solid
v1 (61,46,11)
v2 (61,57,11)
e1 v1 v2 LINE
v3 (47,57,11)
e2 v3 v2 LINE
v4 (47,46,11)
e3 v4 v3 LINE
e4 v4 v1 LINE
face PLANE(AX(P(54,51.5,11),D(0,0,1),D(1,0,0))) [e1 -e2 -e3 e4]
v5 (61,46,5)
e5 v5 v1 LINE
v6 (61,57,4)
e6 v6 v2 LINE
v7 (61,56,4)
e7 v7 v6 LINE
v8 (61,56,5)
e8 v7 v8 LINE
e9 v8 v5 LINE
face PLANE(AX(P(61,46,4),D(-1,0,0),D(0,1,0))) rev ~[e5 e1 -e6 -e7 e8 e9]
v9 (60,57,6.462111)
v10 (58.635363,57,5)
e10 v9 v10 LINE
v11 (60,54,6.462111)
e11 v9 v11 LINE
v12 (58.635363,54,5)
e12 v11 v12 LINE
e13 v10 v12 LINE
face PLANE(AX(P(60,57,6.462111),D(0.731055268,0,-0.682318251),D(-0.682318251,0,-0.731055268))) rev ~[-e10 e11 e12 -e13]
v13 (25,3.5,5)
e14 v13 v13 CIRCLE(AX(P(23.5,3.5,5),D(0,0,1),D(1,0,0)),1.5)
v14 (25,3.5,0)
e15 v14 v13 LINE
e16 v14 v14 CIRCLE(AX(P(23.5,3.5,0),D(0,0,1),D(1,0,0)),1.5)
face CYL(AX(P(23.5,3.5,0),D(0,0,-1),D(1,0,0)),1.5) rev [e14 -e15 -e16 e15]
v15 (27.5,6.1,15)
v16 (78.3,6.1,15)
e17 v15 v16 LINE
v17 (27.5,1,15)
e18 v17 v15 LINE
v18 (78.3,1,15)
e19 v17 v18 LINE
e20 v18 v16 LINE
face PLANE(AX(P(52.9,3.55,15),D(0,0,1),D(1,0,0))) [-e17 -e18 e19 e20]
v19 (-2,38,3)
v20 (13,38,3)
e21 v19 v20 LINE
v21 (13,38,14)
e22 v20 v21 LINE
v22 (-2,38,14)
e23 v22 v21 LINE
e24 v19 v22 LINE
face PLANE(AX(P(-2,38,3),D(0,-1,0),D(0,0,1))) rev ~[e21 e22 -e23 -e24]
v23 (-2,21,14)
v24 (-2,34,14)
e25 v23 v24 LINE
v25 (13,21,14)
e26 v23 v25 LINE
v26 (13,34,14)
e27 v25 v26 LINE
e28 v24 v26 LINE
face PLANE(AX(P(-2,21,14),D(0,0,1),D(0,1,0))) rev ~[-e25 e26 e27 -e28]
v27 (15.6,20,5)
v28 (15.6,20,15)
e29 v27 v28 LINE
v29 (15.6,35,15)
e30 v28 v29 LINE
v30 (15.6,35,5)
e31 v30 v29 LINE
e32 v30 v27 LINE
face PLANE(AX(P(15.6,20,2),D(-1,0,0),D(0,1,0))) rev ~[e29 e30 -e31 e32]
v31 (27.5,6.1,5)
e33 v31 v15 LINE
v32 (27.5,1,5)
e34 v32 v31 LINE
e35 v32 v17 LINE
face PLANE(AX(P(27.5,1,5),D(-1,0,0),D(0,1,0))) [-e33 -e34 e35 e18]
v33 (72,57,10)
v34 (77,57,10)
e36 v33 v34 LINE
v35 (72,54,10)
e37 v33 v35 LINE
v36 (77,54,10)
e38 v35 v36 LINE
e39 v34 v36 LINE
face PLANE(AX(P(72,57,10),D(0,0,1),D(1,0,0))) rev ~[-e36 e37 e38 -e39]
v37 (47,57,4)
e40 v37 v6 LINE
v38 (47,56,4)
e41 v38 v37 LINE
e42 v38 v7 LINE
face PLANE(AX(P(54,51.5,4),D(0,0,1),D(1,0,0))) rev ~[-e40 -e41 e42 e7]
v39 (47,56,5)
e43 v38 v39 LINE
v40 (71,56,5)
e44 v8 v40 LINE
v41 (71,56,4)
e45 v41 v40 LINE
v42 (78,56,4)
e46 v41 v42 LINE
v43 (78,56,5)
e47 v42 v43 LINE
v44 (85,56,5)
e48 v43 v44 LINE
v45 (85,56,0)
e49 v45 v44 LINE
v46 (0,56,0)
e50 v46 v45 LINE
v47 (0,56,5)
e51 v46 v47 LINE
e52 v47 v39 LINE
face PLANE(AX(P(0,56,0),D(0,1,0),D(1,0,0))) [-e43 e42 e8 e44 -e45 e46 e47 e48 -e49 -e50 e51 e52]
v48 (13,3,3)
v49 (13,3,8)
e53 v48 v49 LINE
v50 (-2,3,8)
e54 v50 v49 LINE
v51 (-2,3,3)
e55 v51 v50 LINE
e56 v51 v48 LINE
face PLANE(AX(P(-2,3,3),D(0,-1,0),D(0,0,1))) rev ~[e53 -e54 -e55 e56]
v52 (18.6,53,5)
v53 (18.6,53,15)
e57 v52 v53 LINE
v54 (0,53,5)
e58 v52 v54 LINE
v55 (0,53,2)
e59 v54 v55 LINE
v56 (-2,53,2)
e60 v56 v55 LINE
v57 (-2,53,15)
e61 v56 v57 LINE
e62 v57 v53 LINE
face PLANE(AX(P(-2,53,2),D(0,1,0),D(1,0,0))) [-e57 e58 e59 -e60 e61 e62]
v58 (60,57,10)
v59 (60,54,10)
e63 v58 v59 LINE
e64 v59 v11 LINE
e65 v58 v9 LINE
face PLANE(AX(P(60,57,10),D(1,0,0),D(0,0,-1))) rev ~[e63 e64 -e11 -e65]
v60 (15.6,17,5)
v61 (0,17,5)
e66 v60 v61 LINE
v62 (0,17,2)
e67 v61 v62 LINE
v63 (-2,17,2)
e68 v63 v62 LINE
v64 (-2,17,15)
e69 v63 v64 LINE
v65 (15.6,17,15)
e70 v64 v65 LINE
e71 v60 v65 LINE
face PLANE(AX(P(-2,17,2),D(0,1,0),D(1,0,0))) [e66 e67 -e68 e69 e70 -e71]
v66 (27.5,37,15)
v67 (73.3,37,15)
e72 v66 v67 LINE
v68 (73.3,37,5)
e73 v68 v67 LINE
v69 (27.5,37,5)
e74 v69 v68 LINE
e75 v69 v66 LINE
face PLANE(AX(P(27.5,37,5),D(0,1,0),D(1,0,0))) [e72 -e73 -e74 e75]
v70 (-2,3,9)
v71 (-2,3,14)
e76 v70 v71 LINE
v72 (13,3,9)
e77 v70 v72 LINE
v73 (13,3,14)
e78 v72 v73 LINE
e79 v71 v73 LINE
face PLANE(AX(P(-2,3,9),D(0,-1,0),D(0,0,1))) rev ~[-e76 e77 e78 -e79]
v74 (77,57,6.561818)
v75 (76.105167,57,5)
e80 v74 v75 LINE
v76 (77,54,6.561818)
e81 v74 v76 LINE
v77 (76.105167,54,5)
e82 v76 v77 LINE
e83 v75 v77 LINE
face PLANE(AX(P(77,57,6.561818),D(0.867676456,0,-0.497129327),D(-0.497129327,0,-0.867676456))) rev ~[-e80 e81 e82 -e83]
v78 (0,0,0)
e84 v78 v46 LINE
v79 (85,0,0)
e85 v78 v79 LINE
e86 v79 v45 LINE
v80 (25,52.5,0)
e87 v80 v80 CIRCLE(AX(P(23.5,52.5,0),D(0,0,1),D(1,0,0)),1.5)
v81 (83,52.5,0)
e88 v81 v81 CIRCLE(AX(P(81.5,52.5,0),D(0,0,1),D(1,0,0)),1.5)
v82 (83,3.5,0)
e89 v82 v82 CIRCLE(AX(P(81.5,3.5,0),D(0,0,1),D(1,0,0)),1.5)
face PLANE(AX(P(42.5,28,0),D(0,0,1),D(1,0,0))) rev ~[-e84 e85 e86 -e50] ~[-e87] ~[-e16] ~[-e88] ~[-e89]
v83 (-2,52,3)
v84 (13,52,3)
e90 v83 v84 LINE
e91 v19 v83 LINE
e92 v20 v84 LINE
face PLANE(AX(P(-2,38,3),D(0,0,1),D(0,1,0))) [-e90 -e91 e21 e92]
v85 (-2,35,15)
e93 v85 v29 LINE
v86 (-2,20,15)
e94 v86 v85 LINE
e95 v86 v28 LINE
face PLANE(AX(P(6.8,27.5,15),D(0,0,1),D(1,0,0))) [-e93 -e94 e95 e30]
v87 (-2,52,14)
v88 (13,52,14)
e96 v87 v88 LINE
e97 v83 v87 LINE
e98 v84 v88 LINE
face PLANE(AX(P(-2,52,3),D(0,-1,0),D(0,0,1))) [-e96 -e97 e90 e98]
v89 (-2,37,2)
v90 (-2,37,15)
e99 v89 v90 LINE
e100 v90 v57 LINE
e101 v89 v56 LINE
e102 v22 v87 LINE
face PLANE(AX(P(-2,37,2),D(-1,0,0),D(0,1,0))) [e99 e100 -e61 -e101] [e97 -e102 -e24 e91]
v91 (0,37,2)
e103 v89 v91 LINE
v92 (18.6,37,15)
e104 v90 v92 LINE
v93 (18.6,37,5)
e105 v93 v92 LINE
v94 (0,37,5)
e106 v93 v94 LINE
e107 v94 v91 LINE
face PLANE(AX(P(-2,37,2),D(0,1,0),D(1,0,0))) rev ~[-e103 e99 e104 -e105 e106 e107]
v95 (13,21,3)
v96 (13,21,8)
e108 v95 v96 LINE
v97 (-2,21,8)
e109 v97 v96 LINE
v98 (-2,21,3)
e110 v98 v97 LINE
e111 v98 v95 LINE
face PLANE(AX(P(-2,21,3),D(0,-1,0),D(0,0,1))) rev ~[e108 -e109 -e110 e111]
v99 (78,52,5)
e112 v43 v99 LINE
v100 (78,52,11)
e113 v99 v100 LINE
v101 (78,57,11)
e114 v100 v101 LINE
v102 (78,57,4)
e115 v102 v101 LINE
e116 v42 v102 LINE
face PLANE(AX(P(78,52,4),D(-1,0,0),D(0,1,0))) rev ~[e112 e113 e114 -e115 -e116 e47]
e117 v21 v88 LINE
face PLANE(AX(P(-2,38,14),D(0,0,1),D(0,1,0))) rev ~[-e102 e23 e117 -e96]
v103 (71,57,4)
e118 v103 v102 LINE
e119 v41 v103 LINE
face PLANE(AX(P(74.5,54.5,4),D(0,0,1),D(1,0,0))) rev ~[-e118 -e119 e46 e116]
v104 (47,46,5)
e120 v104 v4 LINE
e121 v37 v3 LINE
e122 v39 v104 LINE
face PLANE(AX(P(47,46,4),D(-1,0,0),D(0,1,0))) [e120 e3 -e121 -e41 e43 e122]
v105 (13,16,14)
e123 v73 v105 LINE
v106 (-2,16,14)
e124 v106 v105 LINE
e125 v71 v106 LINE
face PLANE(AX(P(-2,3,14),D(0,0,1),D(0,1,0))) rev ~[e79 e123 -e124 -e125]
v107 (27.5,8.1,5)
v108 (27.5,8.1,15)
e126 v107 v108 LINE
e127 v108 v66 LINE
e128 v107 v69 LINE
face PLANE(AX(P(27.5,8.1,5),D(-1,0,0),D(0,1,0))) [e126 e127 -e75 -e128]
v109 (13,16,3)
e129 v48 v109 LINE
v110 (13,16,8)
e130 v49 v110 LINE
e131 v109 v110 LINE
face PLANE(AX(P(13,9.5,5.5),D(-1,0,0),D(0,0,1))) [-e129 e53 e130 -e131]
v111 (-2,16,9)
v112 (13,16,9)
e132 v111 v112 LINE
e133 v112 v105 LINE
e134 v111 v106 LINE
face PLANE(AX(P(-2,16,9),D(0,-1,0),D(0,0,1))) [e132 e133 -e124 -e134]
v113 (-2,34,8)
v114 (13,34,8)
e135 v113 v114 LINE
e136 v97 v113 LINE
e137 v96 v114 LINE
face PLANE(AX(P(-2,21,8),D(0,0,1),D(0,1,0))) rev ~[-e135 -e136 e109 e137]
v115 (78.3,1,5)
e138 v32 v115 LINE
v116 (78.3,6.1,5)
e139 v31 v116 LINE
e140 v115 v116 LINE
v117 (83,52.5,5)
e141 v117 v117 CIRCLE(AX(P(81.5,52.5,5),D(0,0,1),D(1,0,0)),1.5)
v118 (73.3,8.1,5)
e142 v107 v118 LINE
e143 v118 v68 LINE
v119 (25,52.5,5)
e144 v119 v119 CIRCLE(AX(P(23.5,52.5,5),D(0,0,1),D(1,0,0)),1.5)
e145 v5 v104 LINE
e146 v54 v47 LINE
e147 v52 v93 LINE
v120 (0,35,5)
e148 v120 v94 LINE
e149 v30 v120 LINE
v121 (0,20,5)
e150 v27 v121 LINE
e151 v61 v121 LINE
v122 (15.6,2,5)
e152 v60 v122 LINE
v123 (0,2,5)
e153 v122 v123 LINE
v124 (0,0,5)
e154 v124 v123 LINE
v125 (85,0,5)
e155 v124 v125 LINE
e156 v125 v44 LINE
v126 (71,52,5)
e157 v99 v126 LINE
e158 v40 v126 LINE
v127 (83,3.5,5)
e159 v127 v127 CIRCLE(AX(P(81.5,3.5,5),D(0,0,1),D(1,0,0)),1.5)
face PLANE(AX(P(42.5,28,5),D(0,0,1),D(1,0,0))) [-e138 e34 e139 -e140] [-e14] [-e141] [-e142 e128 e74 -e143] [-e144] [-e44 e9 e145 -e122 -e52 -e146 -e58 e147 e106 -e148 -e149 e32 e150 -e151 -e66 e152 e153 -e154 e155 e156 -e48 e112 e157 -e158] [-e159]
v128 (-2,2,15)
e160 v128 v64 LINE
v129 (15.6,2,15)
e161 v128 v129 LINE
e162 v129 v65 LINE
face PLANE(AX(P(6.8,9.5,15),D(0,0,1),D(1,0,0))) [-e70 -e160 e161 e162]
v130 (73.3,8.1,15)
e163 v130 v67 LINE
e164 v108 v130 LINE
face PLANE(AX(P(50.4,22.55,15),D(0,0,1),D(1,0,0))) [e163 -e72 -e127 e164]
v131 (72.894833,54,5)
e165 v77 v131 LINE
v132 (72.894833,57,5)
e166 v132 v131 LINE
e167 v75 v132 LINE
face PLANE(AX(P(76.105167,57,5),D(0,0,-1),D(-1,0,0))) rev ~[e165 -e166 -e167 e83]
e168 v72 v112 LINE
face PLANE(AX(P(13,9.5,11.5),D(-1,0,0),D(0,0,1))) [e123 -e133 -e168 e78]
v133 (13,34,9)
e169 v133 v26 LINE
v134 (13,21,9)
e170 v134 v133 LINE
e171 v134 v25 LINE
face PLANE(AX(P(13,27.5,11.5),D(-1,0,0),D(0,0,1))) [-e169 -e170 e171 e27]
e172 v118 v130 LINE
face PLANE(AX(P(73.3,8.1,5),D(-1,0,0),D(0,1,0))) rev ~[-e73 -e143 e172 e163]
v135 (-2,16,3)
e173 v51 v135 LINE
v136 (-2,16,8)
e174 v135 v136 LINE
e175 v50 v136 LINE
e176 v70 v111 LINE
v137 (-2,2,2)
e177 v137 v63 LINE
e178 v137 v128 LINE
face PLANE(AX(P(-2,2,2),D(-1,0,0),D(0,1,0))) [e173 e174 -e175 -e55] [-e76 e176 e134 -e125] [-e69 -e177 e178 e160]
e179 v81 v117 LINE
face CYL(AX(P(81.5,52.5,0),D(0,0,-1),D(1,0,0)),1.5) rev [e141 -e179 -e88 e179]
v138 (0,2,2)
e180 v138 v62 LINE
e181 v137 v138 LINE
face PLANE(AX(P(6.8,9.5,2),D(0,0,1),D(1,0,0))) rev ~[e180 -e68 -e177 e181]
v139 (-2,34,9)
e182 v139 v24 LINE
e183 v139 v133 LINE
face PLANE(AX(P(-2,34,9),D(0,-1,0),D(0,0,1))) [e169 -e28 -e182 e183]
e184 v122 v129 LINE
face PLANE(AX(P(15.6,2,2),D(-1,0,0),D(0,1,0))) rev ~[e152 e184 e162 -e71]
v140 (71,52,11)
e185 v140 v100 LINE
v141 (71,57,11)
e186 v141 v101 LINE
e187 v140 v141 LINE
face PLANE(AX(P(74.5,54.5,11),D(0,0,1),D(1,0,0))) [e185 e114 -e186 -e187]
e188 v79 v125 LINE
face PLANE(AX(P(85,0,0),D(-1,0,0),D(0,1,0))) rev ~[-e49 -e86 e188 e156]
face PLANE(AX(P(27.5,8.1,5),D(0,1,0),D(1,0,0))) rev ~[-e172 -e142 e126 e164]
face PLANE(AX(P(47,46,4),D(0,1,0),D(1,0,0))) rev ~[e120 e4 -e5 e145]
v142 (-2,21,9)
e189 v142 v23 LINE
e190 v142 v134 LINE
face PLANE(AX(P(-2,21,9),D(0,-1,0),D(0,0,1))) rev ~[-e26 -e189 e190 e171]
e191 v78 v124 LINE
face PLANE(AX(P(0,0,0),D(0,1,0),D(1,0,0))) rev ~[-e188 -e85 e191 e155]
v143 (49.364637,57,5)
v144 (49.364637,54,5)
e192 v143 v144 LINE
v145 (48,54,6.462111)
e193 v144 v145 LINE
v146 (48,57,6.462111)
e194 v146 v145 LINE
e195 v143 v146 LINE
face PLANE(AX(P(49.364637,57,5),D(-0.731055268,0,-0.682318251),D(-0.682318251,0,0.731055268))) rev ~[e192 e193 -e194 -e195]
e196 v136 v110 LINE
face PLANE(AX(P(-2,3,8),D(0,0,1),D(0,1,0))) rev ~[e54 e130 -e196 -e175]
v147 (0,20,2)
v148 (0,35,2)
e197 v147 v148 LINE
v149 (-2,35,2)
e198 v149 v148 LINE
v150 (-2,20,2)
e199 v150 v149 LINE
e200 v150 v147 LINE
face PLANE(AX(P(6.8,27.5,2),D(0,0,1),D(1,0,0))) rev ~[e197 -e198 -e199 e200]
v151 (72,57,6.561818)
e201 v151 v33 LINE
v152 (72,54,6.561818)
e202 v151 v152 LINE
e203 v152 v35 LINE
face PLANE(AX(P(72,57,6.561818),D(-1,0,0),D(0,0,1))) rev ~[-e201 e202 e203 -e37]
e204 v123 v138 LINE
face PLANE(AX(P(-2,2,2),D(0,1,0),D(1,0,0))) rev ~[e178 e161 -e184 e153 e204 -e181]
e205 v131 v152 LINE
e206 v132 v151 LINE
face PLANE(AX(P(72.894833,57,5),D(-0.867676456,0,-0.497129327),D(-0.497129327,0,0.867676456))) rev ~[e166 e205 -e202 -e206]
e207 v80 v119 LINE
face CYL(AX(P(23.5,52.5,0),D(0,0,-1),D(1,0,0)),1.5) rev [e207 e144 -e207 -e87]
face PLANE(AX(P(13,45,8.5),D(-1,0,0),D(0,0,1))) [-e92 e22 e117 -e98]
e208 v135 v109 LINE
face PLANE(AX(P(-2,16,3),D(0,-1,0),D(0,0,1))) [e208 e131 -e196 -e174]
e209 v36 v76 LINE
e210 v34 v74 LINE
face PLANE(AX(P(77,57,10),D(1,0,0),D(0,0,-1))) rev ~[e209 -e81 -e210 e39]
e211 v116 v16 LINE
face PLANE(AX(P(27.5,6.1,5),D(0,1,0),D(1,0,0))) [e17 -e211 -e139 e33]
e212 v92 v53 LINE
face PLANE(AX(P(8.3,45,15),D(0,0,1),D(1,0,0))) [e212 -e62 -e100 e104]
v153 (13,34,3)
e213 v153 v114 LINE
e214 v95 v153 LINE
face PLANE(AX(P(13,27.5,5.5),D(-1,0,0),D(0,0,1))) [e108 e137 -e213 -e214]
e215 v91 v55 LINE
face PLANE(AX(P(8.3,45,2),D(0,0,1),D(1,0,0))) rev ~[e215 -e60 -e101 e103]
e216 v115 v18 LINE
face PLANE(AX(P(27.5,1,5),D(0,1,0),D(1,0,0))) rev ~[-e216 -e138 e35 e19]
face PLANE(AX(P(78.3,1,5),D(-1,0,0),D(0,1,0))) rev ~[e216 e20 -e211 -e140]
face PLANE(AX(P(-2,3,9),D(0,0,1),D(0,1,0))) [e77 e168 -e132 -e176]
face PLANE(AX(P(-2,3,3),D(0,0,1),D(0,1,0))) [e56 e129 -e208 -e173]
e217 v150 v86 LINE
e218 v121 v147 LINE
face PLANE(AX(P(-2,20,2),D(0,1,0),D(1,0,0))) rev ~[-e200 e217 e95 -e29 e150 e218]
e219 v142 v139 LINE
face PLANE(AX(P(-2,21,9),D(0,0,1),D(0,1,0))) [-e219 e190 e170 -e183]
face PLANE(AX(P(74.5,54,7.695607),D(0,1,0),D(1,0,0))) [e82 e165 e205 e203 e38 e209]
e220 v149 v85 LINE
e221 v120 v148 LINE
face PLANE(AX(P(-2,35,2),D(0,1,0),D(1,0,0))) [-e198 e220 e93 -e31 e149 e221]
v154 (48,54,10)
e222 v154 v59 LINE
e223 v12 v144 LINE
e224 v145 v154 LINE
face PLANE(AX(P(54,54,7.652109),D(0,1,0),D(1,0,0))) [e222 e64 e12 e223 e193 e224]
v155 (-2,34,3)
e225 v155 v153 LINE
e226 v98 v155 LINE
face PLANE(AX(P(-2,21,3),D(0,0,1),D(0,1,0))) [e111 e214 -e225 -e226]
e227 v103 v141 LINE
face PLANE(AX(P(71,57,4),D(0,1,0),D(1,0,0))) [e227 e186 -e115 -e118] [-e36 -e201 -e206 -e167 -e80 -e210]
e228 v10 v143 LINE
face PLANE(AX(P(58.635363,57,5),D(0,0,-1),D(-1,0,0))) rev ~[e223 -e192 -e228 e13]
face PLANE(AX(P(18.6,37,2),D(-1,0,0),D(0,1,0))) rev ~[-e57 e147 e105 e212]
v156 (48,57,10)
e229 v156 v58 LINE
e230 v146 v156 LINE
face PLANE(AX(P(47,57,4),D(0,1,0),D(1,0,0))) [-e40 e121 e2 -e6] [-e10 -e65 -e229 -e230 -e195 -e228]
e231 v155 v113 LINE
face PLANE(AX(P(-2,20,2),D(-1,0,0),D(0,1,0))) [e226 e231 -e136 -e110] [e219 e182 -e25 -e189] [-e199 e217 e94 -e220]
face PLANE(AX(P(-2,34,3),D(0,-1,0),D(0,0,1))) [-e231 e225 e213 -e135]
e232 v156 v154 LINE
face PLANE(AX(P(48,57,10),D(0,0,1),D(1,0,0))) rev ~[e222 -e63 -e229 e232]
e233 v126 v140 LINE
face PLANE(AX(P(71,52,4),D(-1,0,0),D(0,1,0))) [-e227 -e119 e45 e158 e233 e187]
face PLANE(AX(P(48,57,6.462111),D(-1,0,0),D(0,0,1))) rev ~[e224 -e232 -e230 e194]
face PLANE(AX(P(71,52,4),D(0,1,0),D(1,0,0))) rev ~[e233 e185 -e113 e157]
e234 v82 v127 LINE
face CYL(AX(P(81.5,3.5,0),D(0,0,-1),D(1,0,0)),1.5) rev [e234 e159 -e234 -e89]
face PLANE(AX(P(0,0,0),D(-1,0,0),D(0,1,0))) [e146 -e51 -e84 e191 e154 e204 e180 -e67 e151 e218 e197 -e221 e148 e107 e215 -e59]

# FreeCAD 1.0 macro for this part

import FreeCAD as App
import Part
import Sketcher
from FreeCAD import Vector
Q = App.Units.Quantity

doc = App.newDocument("Part")
body = doc.addObject("PartDesign::Body", "Body")

# Sketch on XY plane
sketch1 = doc.addObject("Sketcher::SketchObject", "Sketch")
body.addObject(sketch1)
sketch1.AttachmentSupport = (doc.XY_Plane, [""])
sketch1.MapMode = "FlatFace"
sketch1.addGeometry(Part.LineSegment(Vector(0, 56, 0), Vector(0, 0, 0)), False)
sketch1.addGeometry(Part.LineSegment(Vector(0, 0, 0), Vector(85, 0, 0)), False)
sketch1.addGeometry(Part.LineSegment(Vector(85, 0, 0), Vector(85, 56, 0)), False)
sketch1.addGeometry(Part.LineSegment(Vector(85, 56, 0), Vector(0, 56, 0)), False)
sketch1.addGeometry(Part.Circle(Vector(23.5, 3.5, 0), Vector(0, 0, 1), 1.5), False)
sketch1.addGeometry(Part.Circle(Vector(81.5, 3.5, 0), Vector(0, 0, 1), 1.5), False)
sketch1.addGeometry(Part.Circle(Vector(23.5, 52.5, 0), Vector(0, 0, 1), 1.5), False)
sketch1.addGeometry(Part.Circle(Vector(81.5, 52.5, 0), Vector(0, 0, 1), 1.5), False)
sketch1.addConstraint(Sketcher.Constraint("Coincident", 0, 2, 1, 1))
sketch1.addConstraint(Sketcher.Constraint("Coincident", 1, 2, 2, 1))
sketch1.addConstraint(Sketcher.Constraint("Coincident", 2, 2, 3, 1))
sketch1.addConstraint(Sketcher.Constraint("Coincident", 3, 2, 0, 1))
sketch1.addConstraint(Sketcher.Constraint("Vertical", 0))
sketch1.addConstraint(Sketcher.Constraint("Horizontal", 1))
sketch1.addConstraint(Sketcher.Constraint("Vertical", 2))
sketch1.addConstraint(Sketcher.Constraint("Horizontal", 3))
sketch1.addConstraint(Sketcher.Constraint("Coincident", 0, 2, -1, 1))
sketch1.addConstraint(Sketcher.Constraint("Equal", 4, 5))
sketch1.addConstraint(Sketcher.Constraint("Equal", 5, 6))
sketch1.addConstraint(Sketcher.Constraint("Equal", 6, 7))
sketch1.addConstraint(Sketcher.Constraint("Horizontal", 4, 3, 5, 3))
sketch1.addConstraint(Sketcher.Constraint("Horizontal", 6, 3, 7, 3))
sketch1.addConstraint(Sketcher.Constraint("Vertical", 4, 3, 6, 3))
sketch1.addConstraint(Sketcher.Constraint("Vertical", 5, 3, 7, 3))
sketch1.addConstraint(Sketcher.Constraint("Diameter", 4, Q("3 mm")))
sketch1.addConstraint(Sketcher.Constraint("DistanceX", 1, 1, 1, 2, Q("85 mm")))
sketch1.addConstraint(Sketcher.Constraint("DistanceY", 0, 2, 0, 1, Q("56 mm")))
sketch1.addConstraint(Sketcher.Constraint("DistanceX", 4, 3, 5, 3, Q("58 mm")))
sketch1.addConstraint(Sketcher.Constraint("DistanceY", 4, 3, 6, 3, Q("49 mm")))
sketch1.addConstraint(Sketcher.Constraint("DistanceX", -1, 1, 4, 3, Q("23.5 mm")))
sketch1.addConstraint(Sketcher.Constraint("DistanceY", -1, 1, 4, 3, Q("3.5 mm")))
pad1 = doc.addObject("PartDesign::Pad", "Pad")
body.addObject(pad1)
pad1.Profile = sketch1
pad1.Length = 5

# Sketch on XY plane
sketch2 = doc.addObject("Sketcher::SketchObject", "Sketch001")
body.addObject(sketch2)
sketch2.AttachmentSupport = (doc.XY_Plane, [""])
sketch2.MapMode = "FlatFace"
sketch2.AttachmentOffset = App.Placement(Vector(0, 0, 5), App.Rotation())
sketch2.addGeometry(Part.LineSegment(Vector(-2, 53, 0), Vector(-2, 37, 0)), False)
sketch2.addGeometry(Part.LineSegment(Vector(-2, 37, 0), Vector(19, 37, 0)), False)
sketch2.addGeometry(Part.LineSegment(Vector(19, 37, 0), Vector(19, 53, 0)), False)
sketch2.addGeometry(Part.LineSegment(Vector(19, 53, 0), Vector(-2, 53, 0)), False)
sketch2.addConstraint(Sketcher.Constraint("Coincident", 0, 2, 1, 1))
sketch2.addConstraint(Sketcher.Constraint("Coincident", 1, 2, 2, 1))
sketch2.addConstraint(Sketcher.Constraint("Coincident", 2, 2, 3, 1))
sketch2.addConstraint(Sketcher.Constraint("Coincident", 3, 2, 0, 1))
sketch2.addConstraint(Sketcher.Constraint("Vertical", 0))
sketch2.addConstraint(Sketcher.Constraint("Horizontal", 1))
sketch2.addConstraint(Sketcher.Constraint("Vertical", 2))
sketch2.addConstraint(Sketcher.Constraint("Horizontal", 3))
sketch2.addConstraint(Sketcher.Constraint("DistanceY", 0, 2, 0, 1, Q("16 mm")))
sketch2.addConstraint(Sketcher.Constraint("DistanceX", 1, 1, 1, 2, Q("20.6 mm")))
sketch2.addConstraint(Sketcher.Constraint("DistanceX", 0, 2, -1, 1, Q("2 mm")))
sketch2.addConstraint(Sketcher.Constraint("DistanceY", -1, 1, 0, 2, Q("37 mm")))
pad2 = doc.addObject("PartDesign::Pad", "Pad001")
body.addObject(pad2)
pad2.Profile = sketch2
pad2.Type = "TwoLengths"
pad2.Length = 10
pad2.Length2 = 3

# Sketch on XY plane
sketch3 = doc.addObject("Sketcher::SketchObject", "Sketch002")
body.addObject(sketch3)
sketch3.AttachmentSupport = (doc.XY_Plane, [""])
sketch3.MapMode = "FlatFace"
sketch3.AttachmentOffset = App.Placement(Vector(0, 0, 5), App.Rotation())
sketch3.addGeometry(Part.LineSegment(Vector(28, 6, 0), Vector(28, 1, 0)), False)
sketch3.addGeometry(Part.LineSegment(Vector(28, 1, 0), Vector(78, 1, 0)), False)
sketch3.addGeometry(Part.LineSegment(Vector(78, 1, 0), Vector(78, 6, 0)), False)
sketch3.addGeometry(Part.LineSegment(Vector(78, 6, 0), Vector(28, 6, 0)), False)
sketch3.addConstraint(Sketcher.Constraint("Coincident", 0, 2, 1, 1))
sketch3.addConstraint(Sketcher.Constraint("Coincident", 1, 2, 2, 1))
sketch3.addConstraint(Sketcher.Constraint("Coincident", 2, 2, 3, 1))
sketch3.addConstraint(Sketcher.Constraint("Coincident", 3, 2, 0, 1))
sketch3.addConstraint(Sketcher.Constraint("Vertical", 0))
sketch3.addConstraint(Sketcher.Constraint("Horizontal", 1))
sketch3.addConstraint(Sketcher.Constraint("Vertical", 2))
sketch3.addConstraint(Sketcher.Constraint("Horizontal", 3))
sketch3.addConstraint(Sketcher.Constraint("DistanceX", 1, 1, 1, 2, Q("50.8 mm")))
sketch3.addConstraint(Sketcher.Constraint("DistanceY", 0, 2, 0, 1, Q("5.1 mm")))
sketch3.addConstraint(Sketcher.Constraint("DistanceY", -1, 1, 0, 2, Q("1 mm")))
sketch3.addConstraint(Sketcher.Constraint("DistanceX", -1, 1, 0, 2, Q("27.5 mm")))
pad3 = doc.addObject("PartDesign::Pad", "Pad002")
body.addObject(pad3)
pad3.Profile = sketch3
pad3.Length = 10

# Sketch on YZ plane
sketch4 = doc.addObject("Sketcher::SketchObject", "Sketch003")
body.addObject(sketch4)
sketch4.AttachmentSupport = (doc.YZ_Plane, [""])
sketch4.MapMode = "FlatFace"
sketch4.AttachmentOffset = App.Placement(Vector(0, 0, -2), App.Rotation())
sketch4.addGeometry(Part.LineSegment(Vector(52, 3, 0), Vector(38, 3, 0)), False)
sketch4.addGeometry(Part.LineSegment(Vector(38, 3, 0), Vector(38, 14, 0)), False)
sketch4.addGeometry(Part.LineSegment(Vector(38, 14, 0), Vector(52, 14, 0)), False)
sketch4.addGeometry(Part.LineSegment(Vector(52, 14, 0), Vector(52, 3, 0)), False)
sketch4.addConstraint(Sketcher.Constraint("Coincident", 0, 2, 1, 1))
sketch4.addConstraint(Sketcher.Constraint("Coincident", 1, 2, 2, 1))
sketch4.addConstraint(Sketcher.Constraint("Coincident", 2, 2, 3, 1))
sketch4.addConstraint(Sketcher.Constraint("Coincident", 3, 2, 0, 1))
sketch4.addConstraint(Sketcher.Constraint("Horizontal", 0))
sketch4.addConstraint(Sketcher.Constraint("Vertical", 1))
sketch4.addConstraint(Sketcher.Constraint("Horizontal", 2))
sketch4.addConstraint(Sketcher.Constraint("Vertical", 3))
sketch4.addConstraint(Sketcher.Constraint("DistanceX", 0, 2, 0, 1, Q("14 mm")))
sketch4.addConstraint(Sketcher.Constraint("DistanceY", 1, 1, 1, 2, Q("11 mm")))
sketch4.addConstraint(Sketcher.Constraint("DistanceX", -1, 1, 0, 2, Q("38 mm")))
sketch4.addConstraint(Sketcher.Constraint("DistanceY", -1, 1, 0, 2, Q("3 mm")))
pocket1 = doc.addObject("PartDesign::Pocket", "Pocket")
body.addObject(pocket1)
pocket1.Profile = sketch4
pocket1.Length = 15
pocket1.Reversed = True

# Sketch on XY plane
sketch5 = doc.addObject("Sketcher::SketchObject", "Sketch004")
body.addObject(sketch5)
sketch5.AttachmentSupport = (doc.XY_Plane, [""])
sketch5.MapMode = "FlatFace"
sketch5.AttachmentOffset = App.Placement(Vector(0, 0, 5), App.Rotation())
sketch5.addGeometry(Part.LineSegment(Vector(28, 37, 0), Vector(28, 8, 0)), False)
sketch5.addGeometry(Part.LineSegment(Vector(28, 8, 0), Vector(73, 8, 0)), False)
sketch5.addGeometry(Part.LineSegment(Vector(73, 8, 0), Vector(73, 37, 0)), False)
sketch5.addGeometry(Part.LineSegment(Vector(73, 37, 0), Vector(28, 37, 0)), False)
sketch5.addConstraint(Sketcher.Constraint("Coincident", 0, 2, 1, 1))
sketch5.addConstraint(Sketcher.Constraint("Coincident", 1, 2, 2, 1))
sketch5.addConstraint(Sketcher.Constraint("Coincident", 2, 2, 3, 1))
sketch5.addConstraint(Sketcher.Constraint("Coincident", 3, 2, 0, 1))
sketch5.addConstraint(Sketcher.Constraint("Vertical", 0))
sketch5.addConstraint(Sketcher.Constraint("Horizontal", 1))
sketch5.addConstraint(Sketcher.Constraint("Vertical", 2))
sketch5.addConstraint(Sketcher.Constraint("Horizontal", 3))
sketch5.addConstraint(Sketcher.Constraint("DistanceX", 1, 1, 1, 2, Q("45.8 mm")))
sketch5.addConstraint(Sketcher.Constraint("DistanceY", 0, 2, 0, 1, Q("28.9 mm")))
sketch5.addConstraint(Sketcher.Constraint("DistanceY", -1, 1, 2, 2, Q("37 mm")))
sketch5.addConstraint(Sketcher.Constraint("DistanceX", -1, 1, 0, 2, Q("27.5 mm")))
pad4 = doc.addObject("PartDesign::Pad", "Pad003")
body.addObject(pad4)
pad4.Profile = sketch5
pad4.Length = 10

# Sketch on XY plane
sketch6 = doc.addObject("Sketcher::SketchObject", "Sketch005")
body.addObject(sketch6)
sketch6.AttachmentSupport = (doc.XY_Plane, [""])
sketch6.MapMode = "FlatFace"
sketch6.AttachmentOffset = App.Placement(Vector(0, 0, 5), App.Rotation())
sketch6.addGeometry(Part.LineSegment(Vector(-2, 35, 0), Vector(-2, 20, 0)), False)
sketch6.addGeometry(Part.LineSegment(Vector(-2, 20, 0), Vector(16, 20, 0)), False)
sketch6.addGeometry(Part.LineSegment(Vector(16, 20, 0), Vector(16, 35, 0)), False)
sketch6.addGeometry(Part.LineSegment(Vector(16, 35, 0), Vector(-2, 35, 0)), False)
sketch6.addGeometry(Part.LineSegment(Vector(-2, 17, 0), Vector(-2, 2, 0)), False)
sketch6.addGeometry(Part.LineSegment(Vector(-2, 2, 0), Vector(16, 2, 0)), False)
sketch6.addGeometry(Part.LineSegment(Vector(16, 2, 0), Vector(16, 17, 0)), False)
sketch6.addGeometry(Part.LineSegment(Vector(16, 17, 0), Vector(-2, 17, 0)), False)
sketch6.addConstraint(Sketcher.Constraint("Coincident", 0, 2, 1, 1))
sketch6.addConstraint(Sketcher.Constraint("Coincident", 1, 2, 2, 1))
sketch6.addConstraint(Sketcher.Constraint("Coincident", 2, 2, 3, 1))
sketch6.addConstraint(Sketcher.Constraint("Coincident", 3, 2, 0, 1))
sketch6.addConstraint(Sketcher.Constraint("Coincident", 4, 2, 5, 1))
sketch6.addConstraint(Sketcher.Constraint("Coincident", 5, 2, 6, 1))
sketch6.addConstraint(Sketcher.Constraint("Coincident", 6, 2, 7, 1))
sketch6.addConstraint(Sketcher.Constraint("Coincident", 7, 2, 4, 1))
sketch6.addConstraint(Sketcher.Constraint("Vertical", 0))
sketch6.addConstraint(Sketcher.Constraint("Horizontal", 1))
sketch6.addConstraint(Sketcher.Constraint("Vertical", 2))
sketch6.addConstraint(Sketcher.Constraint("Horizontal", 3))
sketch6.addConstraint(Sketcher.Constraint("Vertical", 4))
sketch6.addConstraint(Sketcher.Constraint("Horizontal", 5))
sketch6.addConstraint(Sketcher.Constraint("Vertical", 6))
sketch6.addConstraint(Sketcher.Constraint("Horizontal", 7))
sketch6.addConstraint(Sketcher.Constraint("Vertical", 3, 2, 4, 2))
sketch6.addConstraint(Sketcher.Constraint("Vertical", 2, 2, 5, 2))
sketch6.addConstraint(Sketcher.Constraint("Equal", 2, 4))
sketch6.addConstraint(Sketcher.Constraint("DistanceY", 0, 2, 0, 1, Q("15 mm")))
sketch6.addConstraint(Sketcher.Constraint("DistanceX", 1, 1, 1, 2, Q("17.6 mm")))
sketch6.addConstraint(Sketcher.Constraint("DistanceX", 0, 2, -1, 1, Q("2 mm")))
sketch6.addConstraint(Sketcher.Constraint("DistanceY", -1, 1, 0, 2, Q("20 mm")))
sketch6.addConstraint(Sketcher.Constraint("DistanceY", -1, 1, 4, 2, Q("2 mm")))
pad5 = doc.addObject("PartDesign::Pad", "Pad004")
body.addObject(pad5)
pad5.Profile = sketch6
pad5.Type = "TwoLengths"
pad5.Length = 10
pad5.Length2 = 3

# Sketch on YZ plane
sketch7 = doc.addObject("Sketcher::SketchObject", "Sketch006")
body.addObject(sketch7)
sketch7.AttachmentSupport = (doc.YZ_Plane, [""])
sketch7.MapMode = "FlatFace"
sketch7.AttachmentOffset = App.Placement(Vector(0, 0, -2), App.Rotation())
sketch7.addGeometry(Part.LineSegment(Vector(34, 3, 0), Vector(21, 3, 0)), False)
sketch7.addGeometry(Part.LineSegment(Vector(21, 3, 0), Vector(21, 8, 0)), False)
sketch7.addGeometry(Part.LineSegment(Vector(21, 8, 0), Vector(34, 8, 0)), False)
sketch7.addGeometry(Part.LineSegment(Vector(34, 8, 0), Vector(34, 3, 0)), False)
sketch7.addGeometry(Part.LineSegment(Vector(34, 9, 0), Vector(21, 9, 0)), False)
sketch7.addGeometry(Part.LineSegment(Vector(21, 9, 0), Vector(21, 14, 0)), False)
sketch7.addGeometry(Part.LineSegment(Vector(21, 14, 0), Vector(34, 14, 0)), False)
sketch7.addGeometry(Part.LineSegment(Vector(34, 14, 0), Vector(34, 9, 0)), False)
sketch7.addGeometry(Part.LineSegment(Vector(16, 9, 0), Vector(3, 9, 0)), False)
sketch7.addGeometry(Part.LineSegment(Vector(3, 9, 0), Vector(3, 14, 0)), False)
sketch7.addGeometry(Part.LineSegment(Vector(3, 14, 0), Vector(16, 14, 0)), False)
sketch7.addGeometry(Part.LineSegment(Vector(16, 14, 0), Vector(16, 9, 0)), False)
sketch7.addGeometry(Part.LineSegment(Vector(16, 3, 0), Vector(3, 3, 0)), False)
sketch7.addGeometry(Part.LineSegment(Vector(3, 3, 0), Vector(3, 8, 0)), False)
sketch7.addGeometry(Part.LineSegment(Vector(3, 8, 0), Vector(16, 8, 0)), False)
sketch7.addGeometry(Part.LineSegment(Vector(16, 8, 0), Vector(16, 3, 0)), False)
sketch7.addConstraint(Sketcher.Constraint("Coincident", 0, 2, 1, 1))
sketch7.addConstraint(Sketcher.Constraint("Coincident", 1, 2, 2, 1))
sketch7.addConstraint(Sketcher.Constraint("Coincident", 2, 2, 3, 1))
sketch7.addConstraint(Sketcher.Constraint("Coincident", 3, 2, 0, 1))
sketch7.addConstraint(Sketcher.Constraint("Coincident", 4, 2, 5, 1))
sketch7.addConstraint(Sketcher.Constraint("Coincident", 5, 2, 6, 1))
sketch7.addConstraint(Sketcher.Constraint("Coincident", 6, 2, 7, 1))
sketch7.addConstraint(Sketcher.Constraint("Coincident", 7, 2, 4, 1))
sketch7.addConstraint(Sketcher.Constraint("Coincident", 8, 2, 9, 1))
sketch7.addConstraint(Sketcher.Constraint("Coincident", 9, 2, 10, 1))
sketch7.addConstraint(Sketcher.Constraint("Coincident", 10, 2, 11, 1))
sketch7.addConstraint(Sketcher.Constraint("Coincident", 11, 2, 8, 1))
sketch7.addConstraint(Sketcher.Constraint("Coincident", 12, 2, 13, 1))
sketch7.addConstraint(Sketcher.Constraint("Coincident", 13, 2, 14, 1))
sketch7.addConstraint(Sketcher.Constraint("Coincident", 14, 2, 15, 1))
sketch7.addConstraint(Sketcher.Constraint("Coincident", 15, 2, 12, 1))
sketch7.addConstraint(Sketcher.Constraint("Horizontal", 0))
sketch7.addConstraint(Sketcher.Constraint("Vertical", 1))
sketch7.addConstraint(Sketcher.Constraint("Horizontal", 2))
sketch7.addConstraint(Sketcher.Constraint("Vertical", 3))
sketch7.addConstraint(Sketcher.Constraint("Horizontal", 4))
sketch7.addConstraint(Sketcher.Constraint("Vertical", 5))
sketch7.addConstraint(Sketcher.Constraint("Horizontal", 6))
sketch7.addConstraint(Sketcher.Constraint("Vertical", 7))
sketch7.addConstraint(Sketcher.Constraint("Horizontal", 8))
sketch7.addConstraint(Sketcher.Constraint("Vertical", 9))
sketch7.addConstraint(Sketcher.Constraint("Horizontal", 10))
sketch7.addConstraint(Sketcher.Constraint("Vertical", 11))
sketch7.addConstraint(Sketcher.Constraint("Horizontal", 12))
sketch7.addConstraint(Sketcher.Constraint("Vertical", 13))
sketch7.addConstraint(Sketcher.Constraint("Horizontal", 14))
sketch7.addConstraint(Sketcher.Constraint("Vertical", 15))
sketch7.addConstraint(Sketcher.Constraint("Horizontal", 7, 2, 8, 2))
sketch7.addConstraint(Sketcher.Constraint("Horizontal", 6, 2, 9, 2))
sketch7.addConstraint(Sketcher.Constraint("Horizontal", 3, 2, 12, 2))
sketch7.addConstraint(Sketcher.Constraint("Horizontal", 2, 2, 13, 2))
sketch7.addConstraint(Sketcher.Constraint("Vertical", 1, 2, 4, 2))
sketch7.addConstraint(Sketcher.Constraint("Vertical", 3, 2, 6, 2))
sketch7.addConstraint(Sketcher.Constraint("Vertical", 9, 2, 12, 2))
sketch7.addConstraint(Sketcher.Constraint("Vertical", 11, 2, 14, 2))
sketch7.addConstraint(Sketcher.Constraint("Equal", 6, 8))
sketch7.addConstraint(Sketcher.Constraint("Equal", 3, 5))
sketch7.addConstraint(Sketcher.Constraint("DistanceX", 0, 2, 0, 1, Q("13 mm")))
sketch7.addConstraint(Sketcher.Constraint("DistanceY", 1, 1, 1, 2, Q("5 mm")))
sketch7.addConstraint(Sketcher.Constraint("DistanceX", -1, 1, 0, 2, Q("21 mm")))
sketch7.addConstraint(Sketcher.Constraint("DistanceY", -1, 1, 0, 2, Q("3 mm")))
sketch7.addConstraint(Sketcher.Constraint("DistanceY", -1, 1, 4, 2, Q("9 mm")))
sketch7.addConstraint(Sketcher.Constraint("DistanceX", -1, 1, 8, 2, Q("3 mm")))
pocket2 = doc.addObject("PartDesign::Pocket", "Pocket001")
body.addObject(pocket2)
pocket2.Profile = sketch7
pocket2.Length = 15
pocket2.Reversed = True

# Sketch on XY plane
sketch8 = doc.addObject("Sketcher::SketchObject", "Sketch007")
body.addObject(sketch8)
sketch8.AttachmentSupport = (doc.XY_Plane, [""])
sketch8.MapMode = "FlatFace"
sketch8.AttachmentOffset = App.Placement(Vector(0, 0, 5), App.Rotation())
sketch8.addGeometry(Part.LineSegment(Vector(71, 57, 0), Vector(71, 52, 0)), False)
sketch8.addGeometry(Part.LineSegment(Vector(71, 52, 0), Vector(78, 52, 0)), False)
sketch8.addGeometry(Part.LineSegment(Vector(78, 52, 0), Vector(78, 57, 0)), False)
sketch8.addGeometry(Part.LineSegment(Vector(78, 57, 0), Vector(71, 57, 0)), False)
sketch8.addGeometry(Part.LineSegment(Vector(47, 57, 0), Vector(47, 46, 0)), False)
sketch8.addGeometry(Part.LineSegment(Vector(47, 46, 0), Vector(61, 46, 0)), False)
sketch8.addGeometry(Part.LineSegment(Vector(61, 46, 0), Vector(61, 57, 0)), False)
sketch8.addGeometry(Part.LineSegment(Vector(61, 57, 0), Vector(47, 57, 0)), False)
sketch8.addConstraint(Sketcher.Constraint("Coincident", 0, 2, 1, 1))
sketch8.addConstraint(Sketcher.Constraint("Coincident", 1, 2, 2, 1))
sketch8.addConstraint(Sketcher.Constraint("Coincident", 2, 2, 3, 1))
sketch8.addConstraint(Sketcher.Constraint("Coincident", 3, 2, 0, 1))
sketch8.addConstraint(Sketcher.Constraint("Coincident", 4, 2, 5, 1))
sketch8.addConstraint(Sketcher.Constraint("Coincident", 5, 2, 6, 1))
sketch8.addConstraint(Sketcher.Constraint("Coincident", 6, 2, 7, 1))
sketch8.addConstraint(Sketcher.Constraint("Coincident", 7, 2, 4, 1))
sketch8.addConstraint(Sketcher.Constraint("Vertical", 0))
sketch8.addConstraint(Sketcher.Constraint("Horizontal", 1))
sketch8.addConstraint(Sketcher.Constraint("Vertical", 2))
sketch8.addConstraint(Sketcher.Constraint("Horizontal", 3))
sketch8.addConstraint(Sketcher.Constraint("Vertical", 4))
sketch8.addConstraint(Sketcher.Constraint("Horizontal", 5))
sketch8.addConstraint(Sketcher.Constraint("Vertical", 6))
sketch8.addConstraint(Sketcher.Constraint("Horizontal", 7))
sketch8.addConstraint(Sketcher.Constraint("Horizontal", 3, 2, 6, 2))
sketch8.addConstraint(Sketcher.Constraint("DistanceX", 1, 1, 1, 2, Q("7 mm")))
sketch8.addConstraint(Sketcher.Constraint("DistanceX", 5, 1, 5, 2, Q("14 mm")))
sketch8.addConstraint(Sketcher.Constraint("DistanceY", 0, 2, 0, 1, Q("5 mm")))
sketch8.addConstraint(Sketcher.Constraint("DistanceY", 4, 2, 4, 1, Q("11 mm")))
sketch8.addConstraint(Sketcher.Constraint("DistanceX", -1, 1, 0, 2, Q("71 mm")))
sketch8.addConstraint(Sketcher.Constraint("DistanceY", -1, 1, 0, 2, Q("52 mm")))
sketch8.addConstraint(Sketcher.Constraint("DistanceX", -1, 1, 4, 2, Q("47 mm")))
pad6 = doc.addObject("PartDesign::Pad", "Pad005")
body.addObject(pad6)
pad6.Profile = sketch8
pad6.Type = "TwoLengths"
pad6.Length = 6
pad6.Length2 = 1

# Sketch on XZ plane
sketch9 = doc.addObject("Sketcher::SketchObject", "Sketch008")
body.addObject(sketch9)
sketch9.AttachmentSupport = (doc.XZ_Plane, [""])
sketch9.MapMode = "FlatFace"
sketch9.AttachmentOffset = App.Placement(Vector(0, 0, -57), App.Rotation())
sketch9.addGeometry(Part.LineSegment(Vector(48, 10, 0), Vector(60, 10, 0)), False)
sketch9.addGeometry(Part.LineSegment(Vector(60, 10, 0), Vector(60, 6.5, 0)), False)
sketch9.addGeometry(Part.LineSegment(Vector(60, 6.5, 0), Vector(58.6, 5, 0)), False)
sketch9.addGeometry(Part.LineSegment(Vector(58.6, 5, 0), Vector(49.4, 5, 0)), False)
sketch9.addGeometry(Part.LineSegment(Vector(49.4, 5, 0), Vector(48, 6.5, 0)), False)
sketch9.addGeometry(Part.LineSegment(Vector(48, 6.5, 0), Vector(48, 10, 0)), False)
sketch9.addGeometry(Part.LineSegment(Vector(72, 10, 0), Vector(77, 10, 0)), False)
sketch9.addGeometry(Part.LineSegment(Vector(77, 10, 0), Vector(77, 6.6, 0)), False)
sketch9.addGeometry(Part.LineSegment(Vector(77, 6.6, 0), Vector(76.1, 5, 0)), False)
sketch9.addGeometry(Part.LineSegment(Vector(76.1, 5, 0), Vector(72.9, 5, 0)), False)
sketch9.addGeometry(Part.LineSegment(Vector(72.9, 5, 0), Vector(72, 6.6, 0)), False)
sketch9.addGeometry(Part.LineSegment(Vector(72, 6.6, 0), Vector(72, 10, 0)), False)
sketch9.addConstraint(Sketcher.Constraint("Coincident", 0, 2, 1, 1))
sketch9.addConstraint(Sketcher.Constraint("Coincident", 1, 2, 2, 1))
sketch9.addConstraint(Sketcher.Constraint("Coincident", 2, 2, 3, 1))
sketch9.addConstraint(Sketcher.Constraint("Coincident", 3, 2, 4, 1))
sketch9.addConstraint(Sketcher.Constraint("Coincident", 4, 2, 5, 1))
sketch9.addConstraint(Sketcher.Constraint("Coincident", 5, 2, 0, 1))
sketch9.addConstraint(Sketcher.Constraint("Coincident", 6, 2, 7, 1))
sketch9.addConstraint(Sketcher.Constraint("Coincident", 7, 2, 8, 1))
sketch9.addConstraint(Sketcher.Constraint("Coincident", 8, 2, 9, 1))
sketch9.addConstraint(Sketcher.Constraint("Coincident", 9, 2, 10, 1))
sketch9.addConstraint(Sketcher.Constraint("Coincident", 10, 2, 11, 1))
sketch9.addConstraint(Sketcher.Constraint("Coincident", 11, 2, 6, 1))
sketch9.addConstraint(Sketcher.Constraint("Horizontal", 0))
sketch9.addConstraint(Sketcher.Constraint("Vertical", 1))
sketch9.addConstraint(Sketcher.Constraint("Horizontal", 3))
sketch9.addConstraint(Sketcher.Constraint("Vertical", 5))
sketch9.addConstraint(Sketcher.Constraint("Horizontal", 6))
sketch9.addConstraint(Sketcher.Constraint("Vertical", 7))
sketch9.addConstraint(Sketcher.Constraint("Horizontal", 9))
sketch9.addConstraint(Sketcher.Constraint("Vertical", 11))
sketch9.addConstraint(Sketcher.Constraint("Horizontal", 1, 2, 4, 2))
sketch9.addConstraint(Sketcher.Constraint("Horizontal", 5, 2, 6, 2))
sketch9.addConstraint(Sketcher.Constraint("Horizontal", 3, 2, 8, 2))
sketch9.addConstraint(Sketcher.Constraint("Horizontal", 7, 2, 10, 2))
sketch9.addConstraint(Sketcher.Constraint("Equal", 2, 4))
sketch9.addConstraint(Sketcher.Constraint("Equal", 8, 10))
sketch9.addConstraint(Sketcher.Constraint("DistanceX", 0, 1, 0, 2, Q("12 mm")))
sketch9.addConstraint(Sketcher.Constraint("DistanceX", 6, 1, 6, 2, Q("5 mm")))
sketch9.addConstraint(Sketcher.Constraint("Distance", 2, Q("2 mm")))
sketch9.addConstraint(Sketcher.Constraint("DistanceX", -1, 1, 0, 2, Q("60 mm")))
sketch9.addConstraint(Sketcher.Constraint("DistanceY", -1, 1, 0, 2, Q("10 mm")))
sketch9.addConstraint(Sketcher.Constraint("DistanceY", -1, 1, 2, 2, Q("5 mm")))
sketch9.addConstraint(Sketcher.Constraint("DistanceX", -1, 1, 6, 2, Q("77 mm")))
sketch9.addConstraint(Sketcher.Constraint("Distance", 8, Q("1.8 mm")))
sketch9.addConstraint(Sketcher.Constraint("DistanceY", 1, 2, 1, 1, Q("3.537889 mm")))
sketch9.addConstraint(Sketcher.Constraint("DistanceX", 9, 2, 9, 1, Q("3.210334 mm")))
pocket3 = doc.addObject("PartDesign::Pocket", "Pocket002")
body.addObject(pocket3)
pocket3.Profile = sketch9
pocket3.Length = 3
pocket3.Reversed = True

doc.recompute()
